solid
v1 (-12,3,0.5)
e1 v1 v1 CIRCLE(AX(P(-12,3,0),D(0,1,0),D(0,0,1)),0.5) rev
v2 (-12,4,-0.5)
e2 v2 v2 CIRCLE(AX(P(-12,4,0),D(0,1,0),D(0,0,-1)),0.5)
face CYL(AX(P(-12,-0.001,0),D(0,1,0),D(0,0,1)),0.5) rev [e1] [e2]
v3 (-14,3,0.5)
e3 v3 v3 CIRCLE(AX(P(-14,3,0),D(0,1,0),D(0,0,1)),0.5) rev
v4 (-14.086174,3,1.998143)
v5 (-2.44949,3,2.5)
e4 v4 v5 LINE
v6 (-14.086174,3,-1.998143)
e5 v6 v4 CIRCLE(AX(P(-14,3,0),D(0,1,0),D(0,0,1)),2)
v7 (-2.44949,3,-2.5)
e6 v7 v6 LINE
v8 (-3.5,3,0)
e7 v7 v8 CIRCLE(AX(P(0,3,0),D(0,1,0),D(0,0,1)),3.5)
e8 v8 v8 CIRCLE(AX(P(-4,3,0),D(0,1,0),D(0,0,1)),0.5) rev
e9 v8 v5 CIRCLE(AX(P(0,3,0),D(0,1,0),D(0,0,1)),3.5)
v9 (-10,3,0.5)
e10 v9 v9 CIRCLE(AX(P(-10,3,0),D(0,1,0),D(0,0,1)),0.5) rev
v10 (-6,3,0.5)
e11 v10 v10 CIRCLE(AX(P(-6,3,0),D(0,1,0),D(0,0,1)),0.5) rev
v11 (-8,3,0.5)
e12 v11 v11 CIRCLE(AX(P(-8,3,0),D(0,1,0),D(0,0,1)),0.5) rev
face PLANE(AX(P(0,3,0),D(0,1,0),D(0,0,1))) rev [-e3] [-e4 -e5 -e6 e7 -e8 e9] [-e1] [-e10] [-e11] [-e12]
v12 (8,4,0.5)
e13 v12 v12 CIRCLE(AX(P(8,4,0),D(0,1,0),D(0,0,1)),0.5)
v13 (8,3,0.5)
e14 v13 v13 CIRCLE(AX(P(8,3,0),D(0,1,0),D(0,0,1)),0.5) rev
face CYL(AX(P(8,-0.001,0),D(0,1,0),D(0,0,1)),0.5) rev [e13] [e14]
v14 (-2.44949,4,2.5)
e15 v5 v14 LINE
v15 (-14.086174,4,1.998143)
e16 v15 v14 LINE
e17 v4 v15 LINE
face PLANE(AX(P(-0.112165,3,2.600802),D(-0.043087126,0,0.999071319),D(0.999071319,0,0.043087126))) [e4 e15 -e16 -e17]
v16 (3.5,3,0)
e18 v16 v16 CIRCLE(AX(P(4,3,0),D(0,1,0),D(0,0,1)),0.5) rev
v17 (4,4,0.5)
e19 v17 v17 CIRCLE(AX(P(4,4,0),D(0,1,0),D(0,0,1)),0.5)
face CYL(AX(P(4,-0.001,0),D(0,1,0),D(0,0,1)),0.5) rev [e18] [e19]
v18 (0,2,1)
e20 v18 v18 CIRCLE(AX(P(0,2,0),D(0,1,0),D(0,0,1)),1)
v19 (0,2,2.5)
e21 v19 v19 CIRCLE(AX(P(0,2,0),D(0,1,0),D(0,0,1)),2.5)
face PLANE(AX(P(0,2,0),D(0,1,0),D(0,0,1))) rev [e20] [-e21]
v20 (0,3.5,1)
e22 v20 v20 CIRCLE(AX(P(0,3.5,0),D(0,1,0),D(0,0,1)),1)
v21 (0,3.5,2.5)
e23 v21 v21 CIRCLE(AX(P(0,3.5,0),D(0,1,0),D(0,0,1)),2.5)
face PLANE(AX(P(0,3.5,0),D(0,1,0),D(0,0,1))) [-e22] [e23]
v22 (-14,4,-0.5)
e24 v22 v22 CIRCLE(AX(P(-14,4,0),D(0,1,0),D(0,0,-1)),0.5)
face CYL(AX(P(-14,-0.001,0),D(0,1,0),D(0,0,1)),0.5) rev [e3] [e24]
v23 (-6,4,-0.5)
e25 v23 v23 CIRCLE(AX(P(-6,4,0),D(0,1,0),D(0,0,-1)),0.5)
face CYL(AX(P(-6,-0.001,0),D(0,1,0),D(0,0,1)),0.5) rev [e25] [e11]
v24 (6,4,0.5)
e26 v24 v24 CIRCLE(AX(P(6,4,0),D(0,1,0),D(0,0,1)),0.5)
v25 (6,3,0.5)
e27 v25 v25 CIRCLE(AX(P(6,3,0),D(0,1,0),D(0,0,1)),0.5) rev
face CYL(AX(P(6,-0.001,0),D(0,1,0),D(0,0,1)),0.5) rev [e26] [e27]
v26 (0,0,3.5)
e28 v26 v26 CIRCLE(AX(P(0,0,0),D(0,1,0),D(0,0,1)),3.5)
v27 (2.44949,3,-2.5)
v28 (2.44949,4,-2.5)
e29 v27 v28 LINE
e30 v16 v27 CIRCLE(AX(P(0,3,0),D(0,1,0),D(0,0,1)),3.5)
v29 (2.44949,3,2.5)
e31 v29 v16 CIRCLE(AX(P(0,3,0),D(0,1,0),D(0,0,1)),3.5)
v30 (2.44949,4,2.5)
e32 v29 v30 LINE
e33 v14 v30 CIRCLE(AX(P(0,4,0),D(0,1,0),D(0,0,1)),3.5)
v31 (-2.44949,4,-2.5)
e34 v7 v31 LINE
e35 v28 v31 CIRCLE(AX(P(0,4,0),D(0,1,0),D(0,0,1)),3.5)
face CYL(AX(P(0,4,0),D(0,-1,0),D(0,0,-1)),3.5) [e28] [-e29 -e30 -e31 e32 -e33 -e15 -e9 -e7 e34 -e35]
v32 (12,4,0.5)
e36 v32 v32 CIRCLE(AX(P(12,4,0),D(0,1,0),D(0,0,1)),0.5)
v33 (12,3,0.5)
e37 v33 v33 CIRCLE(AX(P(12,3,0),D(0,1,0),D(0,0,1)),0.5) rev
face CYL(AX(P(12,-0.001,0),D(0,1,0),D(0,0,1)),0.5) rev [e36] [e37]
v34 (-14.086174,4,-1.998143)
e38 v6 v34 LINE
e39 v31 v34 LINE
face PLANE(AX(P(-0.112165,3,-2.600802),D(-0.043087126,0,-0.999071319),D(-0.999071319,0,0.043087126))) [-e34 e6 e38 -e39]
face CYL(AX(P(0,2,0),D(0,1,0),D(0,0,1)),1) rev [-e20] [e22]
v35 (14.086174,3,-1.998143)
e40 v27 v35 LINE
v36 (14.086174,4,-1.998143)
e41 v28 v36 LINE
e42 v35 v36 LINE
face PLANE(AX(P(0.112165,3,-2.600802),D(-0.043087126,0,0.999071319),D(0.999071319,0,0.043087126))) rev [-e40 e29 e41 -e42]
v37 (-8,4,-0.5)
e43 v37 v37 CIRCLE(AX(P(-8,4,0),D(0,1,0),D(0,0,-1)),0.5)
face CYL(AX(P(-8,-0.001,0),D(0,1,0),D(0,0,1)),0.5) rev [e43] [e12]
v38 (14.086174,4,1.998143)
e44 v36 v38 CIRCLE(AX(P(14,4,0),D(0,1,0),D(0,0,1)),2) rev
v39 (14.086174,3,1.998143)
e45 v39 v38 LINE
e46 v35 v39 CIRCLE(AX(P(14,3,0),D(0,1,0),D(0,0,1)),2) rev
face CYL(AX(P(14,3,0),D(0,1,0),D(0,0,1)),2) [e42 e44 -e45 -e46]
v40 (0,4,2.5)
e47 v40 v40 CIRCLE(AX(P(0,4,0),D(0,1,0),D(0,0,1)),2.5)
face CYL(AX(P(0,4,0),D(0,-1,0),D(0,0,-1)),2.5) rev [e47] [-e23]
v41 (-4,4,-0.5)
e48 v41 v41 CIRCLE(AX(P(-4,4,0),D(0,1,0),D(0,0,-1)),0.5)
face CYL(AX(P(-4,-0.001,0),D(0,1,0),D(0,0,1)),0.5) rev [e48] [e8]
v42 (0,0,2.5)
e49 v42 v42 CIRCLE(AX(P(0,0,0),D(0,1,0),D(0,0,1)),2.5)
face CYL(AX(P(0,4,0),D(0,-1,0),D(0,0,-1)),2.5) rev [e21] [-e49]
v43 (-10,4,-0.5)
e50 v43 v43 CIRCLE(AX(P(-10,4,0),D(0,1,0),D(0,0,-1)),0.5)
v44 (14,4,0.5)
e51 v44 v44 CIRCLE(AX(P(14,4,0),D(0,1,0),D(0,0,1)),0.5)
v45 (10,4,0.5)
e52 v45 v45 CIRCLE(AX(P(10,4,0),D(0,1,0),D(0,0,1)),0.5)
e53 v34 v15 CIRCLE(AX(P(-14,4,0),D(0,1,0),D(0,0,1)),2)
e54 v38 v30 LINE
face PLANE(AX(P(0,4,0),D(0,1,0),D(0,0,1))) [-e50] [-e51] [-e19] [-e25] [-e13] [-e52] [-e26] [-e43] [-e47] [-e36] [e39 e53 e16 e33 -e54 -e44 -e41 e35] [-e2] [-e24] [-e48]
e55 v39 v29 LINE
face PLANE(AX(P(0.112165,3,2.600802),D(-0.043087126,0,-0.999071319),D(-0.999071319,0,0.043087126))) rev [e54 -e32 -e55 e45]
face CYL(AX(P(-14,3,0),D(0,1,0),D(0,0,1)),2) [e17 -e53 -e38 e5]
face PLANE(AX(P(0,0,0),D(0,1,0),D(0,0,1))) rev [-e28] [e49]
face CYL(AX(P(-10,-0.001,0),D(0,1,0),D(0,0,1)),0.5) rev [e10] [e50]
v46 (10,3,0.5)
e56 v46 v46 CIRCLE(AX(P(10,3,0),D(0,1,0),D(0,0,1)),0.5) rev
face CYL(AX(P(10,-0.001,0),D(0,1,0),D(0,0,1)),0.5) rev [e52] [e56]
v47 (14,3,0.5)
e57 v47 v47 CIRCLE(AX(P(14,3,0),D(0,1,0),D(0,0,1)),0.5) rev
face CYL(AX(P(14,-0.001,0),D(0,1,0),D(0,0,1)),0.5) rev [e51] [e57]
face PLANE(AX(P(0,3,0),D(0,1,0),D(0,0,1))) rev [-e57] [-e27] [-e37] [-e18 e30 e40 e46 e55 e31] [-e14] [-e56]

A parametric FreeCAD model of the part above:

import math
import FreeCAD as App
import Part
import Sketcher
from FreeCAD import Vector
Q = App.Units.Quantity

doc = App.newDocument("Part")
body = doc.addObject("PartDesign::Body", "Body")

sketch1 = body.newObject("Sketcher::SketchObject", "Sketch")
sketch1.AttachmentSupport = (doc.getObject("XZ_Plane"), [""])
sketch1.MapMode = "FlatFace"
sketch1.addGeometry([
    Part.Circle(Vector(0, 0, 0), Vector(0, 0, 1), 3.5),
    Part.Circle(Vector(0, 0, 0), Vector(0, 0, 1), 2.5),
], False)
sketch1.addConstraint([
    Sketcher.Constraint("Coincident", 0, 3, -1, 1),
    Sketcher.Constraint("Coincident", 1, 3, -1, 1),
    Sketcher.Constraint("Diameter", 0, Q("7 mm")),
    Sketcher.Constraint("Diameter", 1, Q("5 mm")),
])
pad1 = body.newObject("PartDesign::Pad", "Pad")
pad1.Profile = sketch1
pad1.Length = 4
pad1.Reversed = True

sketch2 = body.newObject("Sketcher::SketchObject", "Sketch001")
sketch2.AttachmentSupport = (doc.getObject("XZ_Plane"), [""])
sketch2.MapMode = "FlatFace"
sketch2.AttachmentOffset = App.Placement(Vector(0, 0, -2), App.Rotation())
sketch2.addGeometry([
    Part.Circle(Vector(0, 0, 0), Vector(0, 0, 1), 3.5),
    Part.Circle(Vector(0, 0, 0), Vector(0, 0, 1), 1),
], False)
sketch2.addConstraint([
    Sketcher.Constraint("Coincident", 0, 3, -1, 1),
    Sketcher.Constraint("Coincident", 1, 3, -1, 1),
    Sketcher.Constraint("Diameter", 0, Q("7 mm")),
    Sketcher.Constraint("Diameter", 1, Q("2 mm")),
])
pad2 = body.newObject("PartDesign::Pad", "Pad001")
pad2.Profile = sketch2
pad2.Length = 1.5
pad2.Reversed = True

sketch3 = body.newObject("Sketcher::SketchObject", "Sketch002")
sketch3.AttachmentSupport = (doc.getObject("XZ_Plane"), [""])
sketch3.MapMode = "FlatFace"
sketch3.AttachmentOffset = App.Placement(Vector(0, 0, -3), App.Rotation())
sketch3.addGeometry([
    Part.ArcOfCircle(Part.Circle(Vector(0, 0, 0), Vector(0, 0, 1), 3.5), math.radians(134), math.radians(226)),
    Part.LineSegment(Vector(-2.4, -2.5, 0), Vector(-14.1, -2, 0)),
    Part.ArcOfCircle(Part.Circle(Vector(-14, 0, 0), Vector(0, 0, 1), 2), math.radians(92), math.radians(268)),
    Part.LineSegment(Vector(-14.1, 2, 0), Vector(-2.4, 2.5, 0)),
    Part.LineSegment(Vector(2.4, 2.5, 0), Vector(14.1, 2, 0)),
    Part.ArcOfCircle(Part.Circle(Vector(14, 0, 0), Vector(0, 0, 1), 2), math.radians(-88), math.radians(88)),
    Part.LineSegment(Vector(14.1, -2, 0), Vector(2.4, -2.5, 0)),
    Part.ArcOfCircle(Part.Circle(Vector(0, 0, 0), Vector(0, 0, 1), 3.5), math.radians(-46), math.radians(46)),
], False)
sketch3.addConstraint([
    Sketcher.Constraint("Coincident", 0, 2, 1, 1),
    Sketcher.Constraint("Tangent", 1, 2, 2, 2),
    Sketcher.Constraint("Tangent", 2, 1, 3, 1),
    Sketcher.Constraint("Coincident", 3, 2, 0, 1),
    Sketcher.Constraint("Tangent", 4, 2, 5, 2),
    Sketcher.Constraint("Tangent", 5, 1, 6, 1),
    Sketcher.Constraint("Coincident", 6, 2, 7, 1),
    Sketcher.Constraint("Coincident", 7, 2, 4, 1),
    Sketcher.Constraint("Coincident", 0, 3, -1, 1),
    Sketcher.Constraint("Coincident", 7, 3, -1, 1),
    Sketcher.Constraint("Equal", 2, 5),
    Sketcher.Constraint("Equal", 0, 7),
    Sketcher.Constraint("Symmetric", 2, 3, 5, 3, -1, 1),
    Sketcher.Constraint("Symmetric", 2, 1, 4, 2, -2),
    Sketcher.Constraint("Parallel", 1, 4),
    Sketcher.Constraint("Parallel", 3, 6),
    Sketcher.Constraint("Radius", 2, Q("2 mm")),
    Sketcher.Constraint("Radius", 0, Q("3.5 mm")),
    Sketcher.Constraint("DistanceX", 2, 3, -1, 1, Q("14 mm")),
    Sketcher.Constraint("DistanceY", 0, 2, 3, 2, Q("5 mm")),
])
pad3 = body.newObject("PartDesign::Pad", "Pad002")
pad3.Profile = sketch3
pad3.Length = 1
pad3.Reversed = True

sketch4 = body.newObject("Sketcher::SketchObject", "Sketch003")
sketch4.AttachmentSupport = (doc.getObject("XZ_Plane"), [""])
sketch4.MapMode = "FlatFace"
sketch4.AttachmentOffset = App.Placement(Vector(0, 0, -4), App.Rotation())
sketch4.addGeometry(Part.Circle(Vector(4, 0, 0), Vector(0, 0, 1), 0.5), False)
sketch4.addConstraint([
    Sketcher.Constraint("PointOnObject", 0, 3, -1),
    Sketcher.Constraint("Diameter", 0, Q("1 mm")),
    Sketcher.Constraint("DistanceX", -1, 1, 0, 3, Q("4 mm")),
])
pocket1 = body.newObject("PartDesign::Pocket", "Pocket")
pocket1.Profile = sketch4
pocket1.Type = "UpToFirst"
pocket1.Reversed = True

sketch5 = body.newObject("Sketcher::SketchObject", "Sketch004")
sketch5.AttachmentSupport = (doc.getObject("XZ_Plane"), [""])
sketch5.MapMode = "FlatFace"
sketch5.AttachmentOffset = App.Placement(Vector(0, 0, -4), App.Rotation())
sketch5.addGeometry(Part.Circle(Vector(6, 0, 0), Vector(0, 0, 1), 0.5), False)
sketch5.addConstraint([
    Sketcher.Constraint("PointOnObject", 0, 3, -1),
    Sketcher.Constraint("Diameter", 0, Q("1 mm")),
    Sketcher.Constraint("DistanceX", -1, 1, 0, 3, Q("6 mm")),
])
pocket2 = body.newObject("PartDesign::Pocket", "Pocket001")
pocket2.Profile = sketch5
pocket2.Type = "UpToFirst"
pocket2.Reversed = True

sketch6 = body.newObject("Sketcher::SketchObject", "Sketch005")
sketch6.AttachmentSupport = (doc.getObject("XZ_Plane"), [""])
sketch6.MapMode = "FlatFace"
sketch6.AttachmentOffset = App.Placement(Vector(0, 0, -4), App.Rotation())
sketch6.addGeometry(Part.Circle(Vector(8, 0, 0), Vector(0, 0, 1), 0.5), False)
sketch6.addConstraint([
    Sketcher.Constraint("PointOnObject", 0, 3, -1),
    Sketcher.Constraint("Diameter", 0, Q("1 mm")),
    Sketcher.Constraint("DistanceX", -1, 1, 0, 3, Q("8 mm")),
])
pocket3 = body.newObject("PartDesign::Pocket", "Pocket002")
pocket3.Profile = sketch6
pocket3.Type = "UpToFirst"
pocket3.Reversed = True

sketch7 = body.newObject("Sketcher::SketchObject", "Sketch006")
sketch7.AttachmentSupport = (doc.getObject("XZ_Plane"), [""])
sketch7.MapMode = "FlatFace"
sketch7.AttachmentOffset = App.Placement(Vector(0, 0, -4), App.Rotation())
sketch7.addGeometry(Part.Circle(Vector(10, 0, 0), Vector(0, 0, 1), 0.5), False)
sketch7.addConstraint([
    Sketcher.Constraint("PointOnObject", 0, 3, -1),
    Sketcher.Constraint("Diameter", 0, Q("1 mm")),
    Sketcher.Constraint("DistanceX", -1, 1, 0, 3, Q("10 mm")),
])
pocket4 = body.newObject("PartDesign::Pocket", "Pocket003")
pocket4.Profile = sketch7
pocket4.Type = "UpToFirst"
pocket4.Reversed = True

sketch8 = body.newObject("Sketcher::SketchObject", "Sketch007")
sketch8.AttachmentSupport = (doc.getObject("XZ_Plane"), [""])
sketch8.MapMode = "FlatFace"
sketch8.AttachmentOffset = App.Placement(Vector(0, 0, -4), App.Rotation())
sketch8.addGeometry(Part.Circle(Vector(12, 0, 0), Vector(0, 0, 1), 0.5), False)
sketch8.addConstraint([
    Sketcher.Constraint("PointOnObject", 0, 3, -1),
    Sketcher.Constraint("Diameter", 0, Q("1 mm")),
    Sketcher.Constraint("DistanceX", -1, 1, 0, 3, Q("12 mm")),
])
pocket5 = body.newObject("PartDesign::Pocket", "Pocket004")
pocket5.Profile = sketch8
pocket5.Type = "UpToFirst"
pocket5.Reversed = True

sketch9 = body.newObject("Sketcher::SketchObject", "Sketch008")
sketch9.AttachmentSupport = (doc.getObject("XZ_Plane"), [""])
sketch9.MapMode = "FlatFace"
sketch9.AttachmentOffset = App.Placement(Vector(0, 0, -4), App.Rotation())
sketch9.addGeometry(Part.Circle(Vector(14, 0, 0), Vector(0, 0, 1), 0.5), False)
sketch9.addConstraint([
    Sketcher.Constraint("PointOnObject", 0, 3, -1),
    Sketcher.Constraint("Diameter", 0, Q("1 mm")),
    Sketcher.Constraint("DistanceX", -1, 1, 0, 3, Q("14 mm")),
])
pocket6 = body.newObject("PartDesign::Pocket", "Pocket005")
pocket6.Profile = sketch9
pocket6.Type = "UpToFirst"
pocket6.Reversed = True

sketch10 = body.newObject("Sketcher::SketchObject", "Sketch009")
sketch10.AttachmentSupport = (doc.getObject("XZ_Plane"), [""])
sketch10.MapMode = "FlatFace"
sketch10.AttachmentOffset = App.Placement(Vector(0, 0, -4), App.Rotation())
sketch10.addGeometry(Part.Circle(Vector(-14, 0, 0), Vector(0, 0, 1), 0.5), False)
sketch10.addConstraint([
    Sketcher.Constraint("PointOnObject", 0, 3, -1),
    Sketcher.Constraint("Diameter", 0, Q("1 mm")),
    Sketcher.Constraint("DistanceX", 0, 3, -1, 1, Q("14 mm")),
])
pocket7 = body.newObject("PartDesign::Pocket", "Pocket006")
pocket7.Profile = sketch10
pocket7.Type = "UpToFirst"
pocket7.Reversed = True

sketch11 = body.newObject("Sketcher::SketchObject", "Sketch010")
sketch11.AttachmentSupport = (doc.getObject("XZ_Plane"), [""])
sketch11.MapMode = "FlatFace"
sketch11.AttachmentOffset = App.Placement(Vector(0, 0, -4), App.Rotation())
sketch11.addGeometry(Part.Circle(Vector(-12, 0, 0), Vector(0, 0, 1), 0.5), False)
sketch11.addConstraint([
    Sketcher.Constraint("PointOnObject", 0, 3, -1),
    Sketcher.Constraint("Diameter", 0, Q("1 mm")),
    Sketcher.Constraint("DistanceX", 0, 3, -1, 1, Q("12 mm")),
])
pocket8 = body.newObject("PartDesign::Pocket", "Pocket007")
pocket8.Profile = sketch11
pocket8.Type = "UpToFirst"
pocket8.Reversed = True

sketch12 = body.newObject("Sketcher::SketchObject", "Sketch011")
sketch12.AttachmentSupport = (doc.getObject("XZ_Plane"), [""])
sketch12.MapMode = "FlatFace"
sketch12.AttachmentOffset = App.Placement(Vector(0, 0, -4), App.Rotation())
sketch12.addGeometry(Part.Circle(Vector(-10, 0, 0), Vector(0, 0, 1), 0.5), False)
sketch12.addConstraint([
    Sketcher.Constraint("PointOnObject", 0, 3, -1),
    Sketcher.Constraint("Diameter", 0, Q("1 mm")),
    Sketcher.Constraint("DistanceX", 0, 3, -1, 1, Q("10 mm")),
])
pocket9 = body.newObject("PartDesign::Pocket", "Pocket008")
pocket9.Profile = sketch12
pocket9.Type = "UpToFirst"
pocket9.Reversed = True

sketch13 = body.newObject("Sketcher::SketchObject", "Sketch012")
sketch13.AttachmentSupport = (doc.getObject("XZ_Plane"), [""])
sketch13.MapMode = "FlatFace"
sketch13.AttachmentOffset = App.Placement(Vector(0, 0, -4), App.Rotation())
sketch13.addGeometry(Part.Circle(Vector(-8, 0, 0), Vector(0, 0, 1), 0.5), False)
sketch13.addConstraint([
    Sketcher.Constraint("PointOnObject", 0, 3, -1),
    Sketcher.Constraint("Diameter", 0, Q("1 mm")),
    Sketcher.Constraint("DistanceX", 0, 3, -1, 1, Q("8 mm")),
])
pocket10 = body.newObject("PartDesign::Pocket", "Pocket009")
pocket10.Profile = sketch13
pocket10.Type = "UpToFirst"
pocket10.Reversed = True

sketch14 = body.newObject("Sketcher::SketchObject", "Sketch013")
sketch14.AttachmentSupport = (doc.getObject("XZ_Plane"), [""])
sketch14.MapMode = "FlatFace"
sketch14.AttachmentOffset = App.Placement(Vector(0, 0, -4), App.Rotation())
sketch14.addGeometry(Part.Circle(Vector(-6, 0, 0), Vector(0, 0, 1), 0.5), False)
sketch14.addConstraint([
    Sketcher.Constraint("PointOnObject", 0, 3, -1),
    Sketcher.Constraint("Diameter", 0, Q("1 mm")),
    Sketcher.Constraint("DistanceX", 0, 3, -1, 1, Q("6 mm")),
])
pocket11 = body.newObject("PartDesign::Pocket", "Pocket010")
pocket11.Profile = sketch14
pocket11.Type = "UpToFirst"
pocket11.Reversed = True

sketch15 = body.newObject("Sketcher::SketchObject", "Sketch014")
sketch15.AttachmentSupport = (doc.getObject("XZ_Plane"), [""])
sketch15.MapMode = "FlatFace"
sketch15.AttachmentOffset = App.Placement(Vector(0, 0, -4), App.Rotation())
sketch15.addGeometry(Part.Circle(Vector(-4, 0, 0), Vector(0, 0, 1), 0.5), False)
sketch15.addConstraint([
    Sketcher.Constraint("PointOnObject", 0, 3, -1),
    Sketcher.Constraint("Diameter", 0, Q("1 mm")),
    Sketcher.Constraint("DistanceX", 0, 3, -1, 1, Q("4 mm")),
])
pocket12 = body.newObject("PartDesign::Pocket", "Pocket011")
pocket12.Profile = sketch15
pocket12.Type = "UpToFirst"
pocket12.Reversed = True

doc.recompute()
